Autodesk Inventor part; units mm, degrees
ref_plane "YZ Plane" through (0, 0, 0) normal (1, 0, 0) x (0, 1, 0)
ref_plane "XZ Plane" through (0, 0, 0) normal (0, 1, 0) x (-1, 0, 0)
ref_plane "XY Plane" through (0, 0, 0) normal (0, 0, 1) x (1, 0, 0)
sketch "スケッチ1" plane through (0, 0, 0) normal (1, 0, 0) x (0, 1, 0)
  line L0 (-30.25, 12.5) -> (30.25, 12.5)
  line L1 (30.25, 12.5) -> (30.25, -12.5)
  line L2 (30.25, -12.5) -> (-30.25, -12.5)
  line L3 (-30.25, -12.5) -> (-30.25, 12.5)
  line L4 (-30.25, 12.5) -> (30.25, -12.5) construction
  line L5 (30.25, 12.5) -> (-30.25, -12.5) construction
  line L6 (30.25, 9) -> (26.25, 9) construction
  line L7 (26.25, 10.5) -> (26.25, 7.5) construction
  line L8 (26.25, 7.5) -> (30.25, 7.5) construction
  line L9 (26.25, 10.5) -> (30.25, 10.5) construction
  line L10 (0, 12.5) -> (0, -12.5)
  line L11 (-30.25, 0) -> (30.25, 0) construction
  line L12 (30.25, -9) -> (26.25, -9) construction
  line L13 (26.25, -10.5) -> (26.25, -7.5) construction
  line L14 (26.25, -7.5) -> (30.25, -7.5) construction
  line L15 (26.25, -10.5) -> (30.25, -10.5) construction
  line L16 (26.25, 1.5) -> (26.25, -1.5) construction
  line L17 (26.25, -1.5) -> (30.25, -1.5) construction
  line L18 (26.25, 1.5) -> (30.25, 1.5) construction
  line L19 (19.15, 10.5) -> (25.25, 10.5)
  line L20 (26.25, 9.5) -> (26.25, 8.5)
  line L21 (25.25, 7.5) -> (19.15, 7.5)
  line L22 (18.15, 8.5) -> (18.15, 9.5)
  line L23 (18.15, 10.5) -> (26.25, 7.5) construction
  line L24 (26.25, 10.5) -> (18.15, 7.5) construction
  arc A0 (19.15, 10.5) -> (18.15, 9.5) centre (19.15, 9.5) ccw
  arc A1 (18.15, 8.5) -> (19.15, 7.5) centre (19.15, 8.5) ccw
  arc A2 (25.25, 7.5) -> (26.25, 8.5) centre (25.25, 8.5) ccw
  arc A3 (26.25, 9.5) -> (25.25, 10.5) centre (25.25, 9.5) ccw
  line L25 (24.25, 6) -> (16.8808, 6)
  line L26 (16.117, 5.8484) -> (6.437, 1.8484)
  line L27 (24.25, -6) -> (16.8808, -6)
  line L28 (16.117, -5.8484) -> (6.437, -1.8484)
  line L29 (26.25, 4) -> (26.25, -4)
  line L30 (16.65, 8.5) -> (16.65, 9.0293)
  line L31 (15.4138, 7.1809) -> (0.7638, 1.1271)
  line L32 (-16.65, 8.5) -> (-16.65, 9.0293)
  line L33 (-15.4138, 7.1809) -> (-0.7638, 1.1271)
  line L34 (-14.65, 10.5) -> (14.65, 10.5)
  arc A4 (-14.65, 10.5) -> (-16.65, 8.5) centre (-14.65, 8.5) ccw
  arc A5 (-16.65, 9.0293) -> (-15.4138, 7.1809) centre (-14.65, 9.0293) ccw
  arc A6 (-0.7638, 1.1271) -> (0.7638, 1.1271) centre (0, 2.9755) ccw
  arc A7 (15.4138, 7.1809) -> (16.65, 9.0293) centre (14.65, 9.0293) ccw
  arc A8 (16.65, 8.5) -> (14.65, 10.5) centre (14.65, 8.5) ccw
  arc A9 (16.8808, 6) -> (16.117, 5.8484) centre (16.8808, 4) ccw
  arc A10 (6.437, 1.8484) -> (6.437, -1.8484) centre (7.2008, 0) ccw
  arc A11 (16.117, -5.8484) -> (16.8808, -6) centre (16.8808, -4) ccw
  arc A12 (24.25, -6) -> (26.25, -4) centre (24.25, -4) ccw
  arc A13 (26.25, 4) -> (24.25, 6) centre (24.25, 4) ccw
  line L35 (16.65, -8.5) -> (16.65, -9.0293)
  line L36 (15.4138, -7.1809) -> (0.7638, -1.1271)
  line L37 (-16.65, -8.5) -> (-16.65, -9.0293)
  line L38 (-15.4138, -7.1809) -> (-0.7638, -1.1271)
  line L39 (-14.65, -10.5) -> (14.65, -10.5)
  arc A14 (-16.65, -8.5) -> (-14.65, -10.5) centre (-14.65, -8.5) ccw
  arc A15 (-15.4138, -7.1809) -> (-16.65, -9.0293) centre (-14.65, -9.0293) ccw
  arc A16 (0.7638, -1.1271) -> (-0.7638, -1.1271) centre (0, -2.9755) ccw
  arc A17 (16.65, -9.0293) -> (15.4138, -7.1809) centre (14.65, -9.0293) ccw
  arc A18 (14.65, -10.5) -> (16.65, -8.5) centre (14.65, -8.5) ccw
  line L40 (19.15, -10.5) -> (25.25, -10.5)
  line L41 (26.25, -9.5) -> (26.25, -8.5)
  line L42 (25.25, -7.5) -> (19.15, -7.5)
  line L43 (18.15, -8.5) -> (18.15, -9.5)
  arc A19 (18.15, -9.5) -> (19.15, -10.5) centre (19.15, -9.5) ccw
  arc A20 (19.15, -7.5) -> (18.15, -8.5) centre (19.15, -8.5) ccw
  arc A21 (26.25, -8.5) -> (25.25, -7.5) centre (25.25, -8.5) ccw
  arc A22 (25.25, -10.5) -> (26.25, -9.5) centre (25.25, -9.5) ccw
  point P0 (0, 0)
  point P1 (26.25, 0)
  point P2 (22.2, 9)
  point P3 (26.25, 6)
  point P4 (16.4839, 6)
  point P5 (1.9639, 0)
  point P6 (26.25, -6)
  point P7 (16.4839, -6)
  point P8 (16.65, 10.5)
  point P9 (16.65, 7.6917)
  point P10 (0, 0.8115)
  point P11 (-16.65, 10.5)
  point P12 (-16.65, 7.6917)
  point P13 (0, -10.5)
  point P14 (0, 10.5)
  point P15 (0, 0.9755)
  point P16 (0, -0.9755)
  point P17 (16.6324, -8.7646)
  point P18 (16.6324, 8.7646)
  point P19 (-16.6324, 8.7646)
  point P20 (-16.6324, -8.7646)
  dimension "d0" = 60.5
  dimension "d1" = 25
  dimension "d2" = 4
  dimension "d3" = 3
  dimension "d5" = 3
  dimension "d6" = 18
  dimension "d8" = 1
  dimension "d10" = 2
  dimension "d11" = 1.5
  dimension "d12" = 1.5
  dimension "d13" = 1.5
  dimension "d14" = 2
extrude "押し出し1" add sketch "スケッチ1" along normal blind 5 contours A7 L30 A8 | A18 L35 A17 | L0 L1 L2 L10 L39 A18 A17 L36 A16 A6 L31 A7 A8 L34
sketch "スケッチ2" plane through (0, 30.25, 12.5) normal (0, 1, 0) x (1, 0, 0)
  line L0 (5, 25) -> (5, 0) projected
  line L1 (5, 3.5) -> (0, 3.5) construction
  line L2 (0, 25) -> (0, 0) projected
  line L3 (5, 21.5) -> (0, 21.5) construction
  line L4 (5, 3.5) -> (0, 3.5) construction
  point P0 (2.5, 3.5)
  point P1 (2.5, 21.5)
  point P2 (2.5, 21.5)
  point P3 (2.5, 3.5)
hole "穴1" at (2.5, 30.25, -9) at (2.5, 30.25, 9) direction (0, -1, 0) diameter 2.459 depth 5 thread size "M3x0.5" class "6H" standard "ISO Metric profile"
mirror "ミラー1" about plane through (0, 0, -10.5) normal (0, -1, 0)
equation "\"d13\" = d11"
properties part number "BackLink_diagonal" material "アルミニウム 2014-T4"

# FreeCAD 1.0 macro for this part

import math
import FreeCAD as App
import Part
import Sketcher
Q = App.Units.Quantity

doc = App.newDocument("Part")
body = doc.addObject("PartDesign::Body", "Body")

sketch1 = body.newObject("Sketcher::SketchObject", "Sketch")
sketch1.AttachmentSupport = (doc.getObject("YZ_Plane"), [""])
sketch1.MapMode = "FlatFace"
sketch1.addGeometry([
    Part.LineSegment(App.Vector(30.2, 12.5, 0), App.Vector(0, 12.5, 0)),
    Part.LineSegment(App.Vector(0, 12.5, 0), App.Vector(0, 10.5, 0)),
    Part.LineSegment(App.Vector(0, 10.5, 0), App.Vector(14.7, 10.5, 0)),
    Part.ArcOfCircle(Part.Circle(App.Vector(14.7, 8.5, 0), App.Vector(0, 0, 1), 2), math.radians(8), math.radians(90)),
    Part.ArcOfCircle(Part.Circle(App.Vector(14.7, 9, 0), App.Vector(0, 0, 1), 2), math.radians(-68), math.radians(-8)),
    Part.LineSegment(App.Vector(15.4, 7.2, 0), App.Vector(0.8, 1.1, 0)),
    Part.ArcOfCircle(Part.Circle(App.Vector(0, 3, 0), App.Vector(0, 0, 1), 2), math.radians(-90), math.radians(-68)),
    Part.LineSegment(App.Vector(0, 1, 0), App.Vector(0, -1, 0)),
    Part.ArcOfCircle(Part.Circle(App.Vector(0, -3, 0), App.Vector(0, 0, 1), 2), math.radians(68), math.radians(90)),
    Part.LineSegment(App.Vector(0.8, -1.1, 0), App.Vector(15.4, -7.2, 0)),
    Part.ArcOfCircle(Part.Circle(App.Vector(14.7, -9, 0), App.Vector(0, 0, 1), 2), math.radians(8), math.radians(68)),
    Part.ArcOfCircle(Part.Circle(App.Vector(14.7, -8.5, 0), App.Vector(0, 0, 1), 2), math.radians(-90), math.radians(-8)),
    Part.LineSegment(App.Vector(14.7, -10.5, 0), App.Vector(0, -10.5, 0)),
    Part.LineSegment(App.Vector(0, -10.5, 0), App.Vector(0, -12.5, 0)),
    Part.LineSegment(App.Vector(0, -12.5, 0), App.Vector(30.2, -12.5, 0)),
    Part.LineSegment(App.Vector(30.2, -12.5, 0), App.Vector(30.2, 12.5, 0)),
    Part.LineSegment(App.Vector(25.2, -10.5, 0), App.Vector(19.1, -10.5, 0)),
    Part.ArcOfCircle(Part.Circle(App.Vector(19.1, -9.5, 0), App.Vector(0, 0, 1), 1), math.radians(180), math.radians(270)),
    Part.LineSegment(App.Vector(18.1, -9.5, 0), App.Vector(18.1, -8.5, 0)),
    Part.ArcOfCircle(Part.Circle(App.Vector(19.1, -8.5, 0), App.Vector(0, 0, 1), 1), math.radians(90), math.radians(180)),
    Part.LineSegment(App.Vector(19.1, -7.5, 0), App.Vector(25.2, -7.5, 0)),
    Part.ArcOfCircle(Part.Circle(App.Vector(25.2, -8.5, 0), App.Vector(0, 0, 1), 1), math.radians(0), math.radians(90)),
    Part.LineSegment(App.Vector(26.2, -8.5, 0), App.Vector(26.2, -9.5, 0)),
    Part.ArcOfCircle(Part.Circle(App.Vector(25.2, -9.5, 0), App.Vector(0, 0, 1), 1), math.radians(-90), math.radians(0)),
    Part.LineSegment(App.Vector(16.9, 6, 0), App.Vector(24.2, 6, 0)),
    Part.ArcOfCircle(Part.Circle(App.Vector(24.2, 4, 0), App.Vector(0, 0, 1), 2), math.radians(0), math.radians(90)),
    Part.LineSegment(App.Vector(26.2, 4, 0), App.Vector(26.2, -4, 0)),
    Part.ArcOfCircle(Part.Circle(App.Vector(24.2, -4, 0), App.Vector(0, 0, 1), 2), math.radians(-90), math.radians(0)),
    Part.LineSegment(App.Vector(24.2, -6, 0), App.Vector(16.9, -6, 0)),
    Part.ArcOfCircle(Part.Circle(App.Vector(16.9, -4, 0), App.Vector(0, 0, 1), 2), math.radians(-112), math.radians(-90)),
    Part.LineSegment(App.Vector(16.1, -5.8, 0), App.Vector(6.4, -1.8, 0)),
    Part.ArcOfCircle(Part.Circle(App.Vector(7.2, 0, 0), App.Vector(0, 0, 1), 2), math.radians(112), math.radians(248)),
    Part.LineSegment(App.Vector(6.4, 1.8, 0), App.Vector(16.1, 5.8, 0)),
    Part.ArcOfCircle(Part.Circle(App.Vector(16.9, 4, 0), App.Vector(0, 0, 1), 2), math.radians(90), math.radians(112)),
    Part.LineSegment(App.Vector(26.2, 9.5, 0), App.Vector(26.2, 8.5, 0)),
    Part.ArcOfCircle(Part.Circle(App.Vector(25.2, 8.5, 0), App.Vector(0, 0, 1), 1), math.radians(-90), math.radians(0)),
    Part.LineSegment(App.Vector(25.2, 7.5, 0), App.Vector(19.1, 7.5, 0)),
    Part.ArcOfCircle(Part.Circle(App.Vector(19.1, 8.5, 0), App.Vector(0, 0, 1), 1), math.radians(180), math.radians(270)),
    Part.LineSegment(App.Vector(18.1, 8.5, 0), App.Vector(18.1, 9.5, 0)),
    Part.ArcOfCircle(Part.Circle(App.Vector(19.1, 9.5, 0), App.Vector(0, 0, 1), 1), math.radians(90), math.radians(180)),
    Part.LineSegment(App.Vector(19.1, 10.5, 0), App.Vector(25.2, 10.5, 0)),
    Part.ArcOfCircle(Part.Circle(App.Vector(25.2, 9.5, 0), App.Vector(0, 0, 1), 1), math.radians(0), math.radians(90)),
], False)
sketch1.addConstraint([
    Sketcher.Constraint("Coincident", 0, 2, 1, 1),
    Sketcher.Constraint("Coincident", 1, 2, 2, 1),
    Sketcher.Constraint("Tangent", 2, 2, 3, 2),
    Sketcher.Constraint("Coincident", 3, 1, 4, 2),
    Sketcher.Constraint("Tangent", 4, 1, 5, 1),
    Sketcher.Constraint("Tangent", 5, 2, 6, 2),
    Sketcher.Constraint("Coincident", 6, 1, 7, 1),
    Sketcher.Constraint("Coincident", 7, 2, 8, 2),
    Sketcher.Constraint("Tangent", 8, 1, 9, 1),
    Sketcher.Constraint("Tangent", 9, 2, 10, 2),
    Sketcher.Constraint("Coincident", 10, 1, 11, 2),
    Sketcher.Constraint("Tangent", 11, 1, 12, 1),
    Sketcher.Constraint("Coincident", 12, 2, 13, 1),
    Sketcher.Constraint("Coincident", 13, 2, 14, 1),
    Sketcher.Constraint("Coincident", 14, 2, 15, 1),
    Sketcher.Constraint("Coincident", 15, 2, 0, 1),
    Sketcher.Constraint("Tangent", 16, 2, 17, 2),
    Sketcher.Constraint("Tangent", 17, 1, 18, 1),
    Sketcher.Constraint("Tangent", 18, 2, 19, 2),
    Sketcher.Constraint("Tangent", 19, 1, 20, 1),
    Sketcher.Constraint("Tangent", 20, 2, 21, 2),
    Sketcher.Constraint("Tangent", 21, 1, 22, 1),
    Sketcher.Constraint("Tangent", 22, 2, 23, 2),
    Sketcher.Constraint("Tangent", 23, 1, 16, 1),
    Sketcher.Constraint("Tangent", 24, 2, 25, 2),
    Sketcher.Constraint("Tangent", 25, 1, 26, 1),
    Sketcher.Constraint("Tangent", 26, 2, 27, 2),
    Sketcher.Constraint("Tangent", 27, 1, 28, 1),
    Sketcher.Constraint("Tangent", 28, 2, 29, 2),
    Sketcher.Constraint("Tangent", 29, 1, 30, 1),
    Sketcher.Constraint("Tangent", 30, 2, 31, 2),
    Sketcher.Constraint("Tangent", 31, 1, 32, 1),
    Sketcher.Constraint("Tangent", 32, 2, 33, 2),
    Sketcher.Constraint("Tangent", 33, 1, 24, 1),
    Sketcher.Constraint("Tangent", 34, 2, 35, 2),
    Sketcher.Constraint("Tangent", 35, 1, 36, 1),
    Sketcher.Constraint("Tangent", 36, 2, 37, 2),
    Sketcher.Constraint("Tangent", 37, 1, 38, 1),
    Sketcher.Constraint("Tangent", 38, 2, 39, 2),
    Sketcher.Constraint("Tangent", 39, 1, 40, 1),
    Sketcher.Constraint("Tangent", 40, 2, 41, 2),
    Sketcher.Constraint("Tangent", 41, 1, 34, 1),
    Sketcher.Constraint("Horizontal", 0),
    Sketcher.Constraint("Vertical", 1),
    Sketcher.Constraint("Horizontal", 2),
    Sketcher.Constraint("Vertical", 7),
    Sketcher.Constraint("Horizontal", 12),
    Sketcher.Constraint("Vertical", 13),
    Sketcher.Constraint("Horizontal", 14),
    Sketcher.Constraint("Vertical", 15),
    Sketcher.Constraint("Horizontal", 16),
    Sketcher.Constraint("Vertical", 18),
    Sketcher.Constraint("Horizontal", 20),
    Sketcher.Constraint("Vertical", 22),
    Sketcher.Constraint("Horizontal", 24),
    Sketcher.Constraint("Vertical", 26),
    Sketcher.Constraint("Horizontal", 28),
    Sketcher.Constraint("Vertical", 34),
    Sketcher.Constraint("Horizontal", 36),
    Sketcher.Constraint("Vertical", 38),
    Sketcher.Constraint("Horizontal", 40),
    Sketcher.Constraint("Equal", 3, 4),
    Sketcher.Constraint("Equal", 4, 6),
    Sketcher.Constraint("Equal", 6, 8),
    Sketcher.Constraint("Equal", 8, 10),
    Sketcher.Constraint("Equal", 10, 11),
    Sketcher.Constraint("Equal", 17, 19),
    Sketcher.Constraint("Equal", 19, 21),
    Sketcher.Constraint("Equal", 21, 23),
    Sketcher.Constraint("Equal", 11, 25),
    Sketcher.Constraint("Equal", 25, 27),
    Sketcher.Constraint("Equal", 27, 29),
    Sketcher.Constraint("Equal", 29, 31),
    Sketcher.Constraint("Equal", 31, 33),
    Sketcher.Constraint("Equal", 23, 35),
    Sketcher.Constraint("Equal", 35, 37),
    Sketcher.Constraint("Equal", 37, 39),
    Sketcher.Constraint("Equal", 39, 41),
    Sketcher.Constraint("Symmetric", 6, 3, 8, 3, -1, 1),
    Sketcher.Constraint("Symmetric", 1, 2, 12, 2, -1, 1),
    Sketcher.Constraint("Symmetric", 4, 3, 10, 3, -1),
    Sketcher.Constraint("Symmetric", 29, 3, 33, 3, -1),
    Sketcher.Constraint("Symmetric", 21, 3, 35, 3, -1),
    Sketcher.Constraint("Symmetric", 17, 3, 39, 3, -1),
    Sketcher.Constraint("Symmetric", 0, 2, 13, 2, -1),
    Sketcher.Constraint("PointOnObject", 6, 3, -2),
    Sketcher.Constraint("PointOnObject", 31, 3, -1),
    Sketcher.Constraint("PointOnObject", 6, 1, -2),
    Sketcher.Constraint("Parallel", 9, 30),
    Sketcher.Constraint("Horizontal", 11, 3, 19, 3),
    Sketcher.Constraint("Horizontal", 12, 2, 16, 2),
    Sketcher.Constraint("Vertical", 3, 3, 4, 3),
    Sketcher.Constraint("Vertical", 10, 3, 11, 3),
    Sketcher.Constraint("Vertical", 22, 2, 25, 1),
    Sketcher.Constraint("Radius", 3, Q("2 mm")),
    Sketcher.Constraint("Radius", 17, Q("1 mm")),
    Sketcher.Constraint("DistanceY", 1, 2, 1, 1, Q("2 mm")),
    Sketcher.Constraint("DistanceY", 15, 1, 15, 2, Q("25 mm")),
    Sketcher.Constraint("DistanceY", -1, 1, 25, 3, Q("4 mm")),
    Sketcher.Constraint("DistanceX", 16, 2, 16, 1, Q("6.1 mm")),
    Sketcher.Constraint("DistanceX", 0, 2, 0, 1, Q("30.25 mm")),
    Sketcher.Constraint("DistanceX", 2, 1, 2, 2, Q("14.65 mm")),
    Sketcher.Constraint("DistanceY", 7, 2, 7, 1, Q("1.951 mm")),
    Sketcher.Constraint("DistanceX", -1, 1, 17, 3, Q("19.15 mm")),
    Sketcher.Constraint("Distance", 30, Q("10.474 mm")),
    Sketcher.Constraint("DistanceX", 24, 1, 24, 2, Q("7.3692 mm")),
])
pad1 = body.newObject("PartDesign::Pad", "Pad")
pad1.Profile = sketch1
pad1.Length = 5

sketch2 = body.newObject("Sketcher::SketchObject", "Sketch001")
sketch2.AttachmentSupport = (doc.getObject("XZ_Plane"), [""])
sketch2.MapMode = "FlatFace"
sketch2.AttachmentOffset = App.Placement(App.Vector(0, 0, -30.25), App.Rotation())
sketch2.addGeometry([
    Part.Circle(App.Vector(2.5, -9, 0), App.Vector(0, 0, 1), 1.2),
    Part.Circle(App.Vector(2.5, 9, 0), App.Vector(0, 0, 1), 1.2),
], False)
sketch2.addConstraint([
    Sketcher.Constraint("Equal", 0, 1),
    Sketcher.Constraint("Symmetric", 0, 3, 1, 3, -1),
    Sketcher.Constraint("Diameter", 0, Q("2.459 mm")),
    Sketcher.Constraint("DistanceY", 0, 3, -1, 1, Q("9 mm")),
    Sketcher.Constraint("DistanceX", -1, 1, 0, 3, Q("2.5 mm")),
])
doc.recompute()
hole = body.newObject("PartDesign::Hole", "Hole")
hole.Profile = sketch2
hole.ThreadType = "None"
hole.Diameter = 2.459
hole.DepthType = "Dimension"
hole.Depth = 5
hole.DrillPoint = "Flat"
hole.Reversed = True
doc.recompute()

mirrored = body.newObject("PartDesign::Mirrored", "Mirrored")
mirrored.TransformMode = "Transform body"
mirrored.MirrorPlane = (doc.getObject("XZ_Plane"), [""])
body.Tip = mirrored

doc.recompute()
